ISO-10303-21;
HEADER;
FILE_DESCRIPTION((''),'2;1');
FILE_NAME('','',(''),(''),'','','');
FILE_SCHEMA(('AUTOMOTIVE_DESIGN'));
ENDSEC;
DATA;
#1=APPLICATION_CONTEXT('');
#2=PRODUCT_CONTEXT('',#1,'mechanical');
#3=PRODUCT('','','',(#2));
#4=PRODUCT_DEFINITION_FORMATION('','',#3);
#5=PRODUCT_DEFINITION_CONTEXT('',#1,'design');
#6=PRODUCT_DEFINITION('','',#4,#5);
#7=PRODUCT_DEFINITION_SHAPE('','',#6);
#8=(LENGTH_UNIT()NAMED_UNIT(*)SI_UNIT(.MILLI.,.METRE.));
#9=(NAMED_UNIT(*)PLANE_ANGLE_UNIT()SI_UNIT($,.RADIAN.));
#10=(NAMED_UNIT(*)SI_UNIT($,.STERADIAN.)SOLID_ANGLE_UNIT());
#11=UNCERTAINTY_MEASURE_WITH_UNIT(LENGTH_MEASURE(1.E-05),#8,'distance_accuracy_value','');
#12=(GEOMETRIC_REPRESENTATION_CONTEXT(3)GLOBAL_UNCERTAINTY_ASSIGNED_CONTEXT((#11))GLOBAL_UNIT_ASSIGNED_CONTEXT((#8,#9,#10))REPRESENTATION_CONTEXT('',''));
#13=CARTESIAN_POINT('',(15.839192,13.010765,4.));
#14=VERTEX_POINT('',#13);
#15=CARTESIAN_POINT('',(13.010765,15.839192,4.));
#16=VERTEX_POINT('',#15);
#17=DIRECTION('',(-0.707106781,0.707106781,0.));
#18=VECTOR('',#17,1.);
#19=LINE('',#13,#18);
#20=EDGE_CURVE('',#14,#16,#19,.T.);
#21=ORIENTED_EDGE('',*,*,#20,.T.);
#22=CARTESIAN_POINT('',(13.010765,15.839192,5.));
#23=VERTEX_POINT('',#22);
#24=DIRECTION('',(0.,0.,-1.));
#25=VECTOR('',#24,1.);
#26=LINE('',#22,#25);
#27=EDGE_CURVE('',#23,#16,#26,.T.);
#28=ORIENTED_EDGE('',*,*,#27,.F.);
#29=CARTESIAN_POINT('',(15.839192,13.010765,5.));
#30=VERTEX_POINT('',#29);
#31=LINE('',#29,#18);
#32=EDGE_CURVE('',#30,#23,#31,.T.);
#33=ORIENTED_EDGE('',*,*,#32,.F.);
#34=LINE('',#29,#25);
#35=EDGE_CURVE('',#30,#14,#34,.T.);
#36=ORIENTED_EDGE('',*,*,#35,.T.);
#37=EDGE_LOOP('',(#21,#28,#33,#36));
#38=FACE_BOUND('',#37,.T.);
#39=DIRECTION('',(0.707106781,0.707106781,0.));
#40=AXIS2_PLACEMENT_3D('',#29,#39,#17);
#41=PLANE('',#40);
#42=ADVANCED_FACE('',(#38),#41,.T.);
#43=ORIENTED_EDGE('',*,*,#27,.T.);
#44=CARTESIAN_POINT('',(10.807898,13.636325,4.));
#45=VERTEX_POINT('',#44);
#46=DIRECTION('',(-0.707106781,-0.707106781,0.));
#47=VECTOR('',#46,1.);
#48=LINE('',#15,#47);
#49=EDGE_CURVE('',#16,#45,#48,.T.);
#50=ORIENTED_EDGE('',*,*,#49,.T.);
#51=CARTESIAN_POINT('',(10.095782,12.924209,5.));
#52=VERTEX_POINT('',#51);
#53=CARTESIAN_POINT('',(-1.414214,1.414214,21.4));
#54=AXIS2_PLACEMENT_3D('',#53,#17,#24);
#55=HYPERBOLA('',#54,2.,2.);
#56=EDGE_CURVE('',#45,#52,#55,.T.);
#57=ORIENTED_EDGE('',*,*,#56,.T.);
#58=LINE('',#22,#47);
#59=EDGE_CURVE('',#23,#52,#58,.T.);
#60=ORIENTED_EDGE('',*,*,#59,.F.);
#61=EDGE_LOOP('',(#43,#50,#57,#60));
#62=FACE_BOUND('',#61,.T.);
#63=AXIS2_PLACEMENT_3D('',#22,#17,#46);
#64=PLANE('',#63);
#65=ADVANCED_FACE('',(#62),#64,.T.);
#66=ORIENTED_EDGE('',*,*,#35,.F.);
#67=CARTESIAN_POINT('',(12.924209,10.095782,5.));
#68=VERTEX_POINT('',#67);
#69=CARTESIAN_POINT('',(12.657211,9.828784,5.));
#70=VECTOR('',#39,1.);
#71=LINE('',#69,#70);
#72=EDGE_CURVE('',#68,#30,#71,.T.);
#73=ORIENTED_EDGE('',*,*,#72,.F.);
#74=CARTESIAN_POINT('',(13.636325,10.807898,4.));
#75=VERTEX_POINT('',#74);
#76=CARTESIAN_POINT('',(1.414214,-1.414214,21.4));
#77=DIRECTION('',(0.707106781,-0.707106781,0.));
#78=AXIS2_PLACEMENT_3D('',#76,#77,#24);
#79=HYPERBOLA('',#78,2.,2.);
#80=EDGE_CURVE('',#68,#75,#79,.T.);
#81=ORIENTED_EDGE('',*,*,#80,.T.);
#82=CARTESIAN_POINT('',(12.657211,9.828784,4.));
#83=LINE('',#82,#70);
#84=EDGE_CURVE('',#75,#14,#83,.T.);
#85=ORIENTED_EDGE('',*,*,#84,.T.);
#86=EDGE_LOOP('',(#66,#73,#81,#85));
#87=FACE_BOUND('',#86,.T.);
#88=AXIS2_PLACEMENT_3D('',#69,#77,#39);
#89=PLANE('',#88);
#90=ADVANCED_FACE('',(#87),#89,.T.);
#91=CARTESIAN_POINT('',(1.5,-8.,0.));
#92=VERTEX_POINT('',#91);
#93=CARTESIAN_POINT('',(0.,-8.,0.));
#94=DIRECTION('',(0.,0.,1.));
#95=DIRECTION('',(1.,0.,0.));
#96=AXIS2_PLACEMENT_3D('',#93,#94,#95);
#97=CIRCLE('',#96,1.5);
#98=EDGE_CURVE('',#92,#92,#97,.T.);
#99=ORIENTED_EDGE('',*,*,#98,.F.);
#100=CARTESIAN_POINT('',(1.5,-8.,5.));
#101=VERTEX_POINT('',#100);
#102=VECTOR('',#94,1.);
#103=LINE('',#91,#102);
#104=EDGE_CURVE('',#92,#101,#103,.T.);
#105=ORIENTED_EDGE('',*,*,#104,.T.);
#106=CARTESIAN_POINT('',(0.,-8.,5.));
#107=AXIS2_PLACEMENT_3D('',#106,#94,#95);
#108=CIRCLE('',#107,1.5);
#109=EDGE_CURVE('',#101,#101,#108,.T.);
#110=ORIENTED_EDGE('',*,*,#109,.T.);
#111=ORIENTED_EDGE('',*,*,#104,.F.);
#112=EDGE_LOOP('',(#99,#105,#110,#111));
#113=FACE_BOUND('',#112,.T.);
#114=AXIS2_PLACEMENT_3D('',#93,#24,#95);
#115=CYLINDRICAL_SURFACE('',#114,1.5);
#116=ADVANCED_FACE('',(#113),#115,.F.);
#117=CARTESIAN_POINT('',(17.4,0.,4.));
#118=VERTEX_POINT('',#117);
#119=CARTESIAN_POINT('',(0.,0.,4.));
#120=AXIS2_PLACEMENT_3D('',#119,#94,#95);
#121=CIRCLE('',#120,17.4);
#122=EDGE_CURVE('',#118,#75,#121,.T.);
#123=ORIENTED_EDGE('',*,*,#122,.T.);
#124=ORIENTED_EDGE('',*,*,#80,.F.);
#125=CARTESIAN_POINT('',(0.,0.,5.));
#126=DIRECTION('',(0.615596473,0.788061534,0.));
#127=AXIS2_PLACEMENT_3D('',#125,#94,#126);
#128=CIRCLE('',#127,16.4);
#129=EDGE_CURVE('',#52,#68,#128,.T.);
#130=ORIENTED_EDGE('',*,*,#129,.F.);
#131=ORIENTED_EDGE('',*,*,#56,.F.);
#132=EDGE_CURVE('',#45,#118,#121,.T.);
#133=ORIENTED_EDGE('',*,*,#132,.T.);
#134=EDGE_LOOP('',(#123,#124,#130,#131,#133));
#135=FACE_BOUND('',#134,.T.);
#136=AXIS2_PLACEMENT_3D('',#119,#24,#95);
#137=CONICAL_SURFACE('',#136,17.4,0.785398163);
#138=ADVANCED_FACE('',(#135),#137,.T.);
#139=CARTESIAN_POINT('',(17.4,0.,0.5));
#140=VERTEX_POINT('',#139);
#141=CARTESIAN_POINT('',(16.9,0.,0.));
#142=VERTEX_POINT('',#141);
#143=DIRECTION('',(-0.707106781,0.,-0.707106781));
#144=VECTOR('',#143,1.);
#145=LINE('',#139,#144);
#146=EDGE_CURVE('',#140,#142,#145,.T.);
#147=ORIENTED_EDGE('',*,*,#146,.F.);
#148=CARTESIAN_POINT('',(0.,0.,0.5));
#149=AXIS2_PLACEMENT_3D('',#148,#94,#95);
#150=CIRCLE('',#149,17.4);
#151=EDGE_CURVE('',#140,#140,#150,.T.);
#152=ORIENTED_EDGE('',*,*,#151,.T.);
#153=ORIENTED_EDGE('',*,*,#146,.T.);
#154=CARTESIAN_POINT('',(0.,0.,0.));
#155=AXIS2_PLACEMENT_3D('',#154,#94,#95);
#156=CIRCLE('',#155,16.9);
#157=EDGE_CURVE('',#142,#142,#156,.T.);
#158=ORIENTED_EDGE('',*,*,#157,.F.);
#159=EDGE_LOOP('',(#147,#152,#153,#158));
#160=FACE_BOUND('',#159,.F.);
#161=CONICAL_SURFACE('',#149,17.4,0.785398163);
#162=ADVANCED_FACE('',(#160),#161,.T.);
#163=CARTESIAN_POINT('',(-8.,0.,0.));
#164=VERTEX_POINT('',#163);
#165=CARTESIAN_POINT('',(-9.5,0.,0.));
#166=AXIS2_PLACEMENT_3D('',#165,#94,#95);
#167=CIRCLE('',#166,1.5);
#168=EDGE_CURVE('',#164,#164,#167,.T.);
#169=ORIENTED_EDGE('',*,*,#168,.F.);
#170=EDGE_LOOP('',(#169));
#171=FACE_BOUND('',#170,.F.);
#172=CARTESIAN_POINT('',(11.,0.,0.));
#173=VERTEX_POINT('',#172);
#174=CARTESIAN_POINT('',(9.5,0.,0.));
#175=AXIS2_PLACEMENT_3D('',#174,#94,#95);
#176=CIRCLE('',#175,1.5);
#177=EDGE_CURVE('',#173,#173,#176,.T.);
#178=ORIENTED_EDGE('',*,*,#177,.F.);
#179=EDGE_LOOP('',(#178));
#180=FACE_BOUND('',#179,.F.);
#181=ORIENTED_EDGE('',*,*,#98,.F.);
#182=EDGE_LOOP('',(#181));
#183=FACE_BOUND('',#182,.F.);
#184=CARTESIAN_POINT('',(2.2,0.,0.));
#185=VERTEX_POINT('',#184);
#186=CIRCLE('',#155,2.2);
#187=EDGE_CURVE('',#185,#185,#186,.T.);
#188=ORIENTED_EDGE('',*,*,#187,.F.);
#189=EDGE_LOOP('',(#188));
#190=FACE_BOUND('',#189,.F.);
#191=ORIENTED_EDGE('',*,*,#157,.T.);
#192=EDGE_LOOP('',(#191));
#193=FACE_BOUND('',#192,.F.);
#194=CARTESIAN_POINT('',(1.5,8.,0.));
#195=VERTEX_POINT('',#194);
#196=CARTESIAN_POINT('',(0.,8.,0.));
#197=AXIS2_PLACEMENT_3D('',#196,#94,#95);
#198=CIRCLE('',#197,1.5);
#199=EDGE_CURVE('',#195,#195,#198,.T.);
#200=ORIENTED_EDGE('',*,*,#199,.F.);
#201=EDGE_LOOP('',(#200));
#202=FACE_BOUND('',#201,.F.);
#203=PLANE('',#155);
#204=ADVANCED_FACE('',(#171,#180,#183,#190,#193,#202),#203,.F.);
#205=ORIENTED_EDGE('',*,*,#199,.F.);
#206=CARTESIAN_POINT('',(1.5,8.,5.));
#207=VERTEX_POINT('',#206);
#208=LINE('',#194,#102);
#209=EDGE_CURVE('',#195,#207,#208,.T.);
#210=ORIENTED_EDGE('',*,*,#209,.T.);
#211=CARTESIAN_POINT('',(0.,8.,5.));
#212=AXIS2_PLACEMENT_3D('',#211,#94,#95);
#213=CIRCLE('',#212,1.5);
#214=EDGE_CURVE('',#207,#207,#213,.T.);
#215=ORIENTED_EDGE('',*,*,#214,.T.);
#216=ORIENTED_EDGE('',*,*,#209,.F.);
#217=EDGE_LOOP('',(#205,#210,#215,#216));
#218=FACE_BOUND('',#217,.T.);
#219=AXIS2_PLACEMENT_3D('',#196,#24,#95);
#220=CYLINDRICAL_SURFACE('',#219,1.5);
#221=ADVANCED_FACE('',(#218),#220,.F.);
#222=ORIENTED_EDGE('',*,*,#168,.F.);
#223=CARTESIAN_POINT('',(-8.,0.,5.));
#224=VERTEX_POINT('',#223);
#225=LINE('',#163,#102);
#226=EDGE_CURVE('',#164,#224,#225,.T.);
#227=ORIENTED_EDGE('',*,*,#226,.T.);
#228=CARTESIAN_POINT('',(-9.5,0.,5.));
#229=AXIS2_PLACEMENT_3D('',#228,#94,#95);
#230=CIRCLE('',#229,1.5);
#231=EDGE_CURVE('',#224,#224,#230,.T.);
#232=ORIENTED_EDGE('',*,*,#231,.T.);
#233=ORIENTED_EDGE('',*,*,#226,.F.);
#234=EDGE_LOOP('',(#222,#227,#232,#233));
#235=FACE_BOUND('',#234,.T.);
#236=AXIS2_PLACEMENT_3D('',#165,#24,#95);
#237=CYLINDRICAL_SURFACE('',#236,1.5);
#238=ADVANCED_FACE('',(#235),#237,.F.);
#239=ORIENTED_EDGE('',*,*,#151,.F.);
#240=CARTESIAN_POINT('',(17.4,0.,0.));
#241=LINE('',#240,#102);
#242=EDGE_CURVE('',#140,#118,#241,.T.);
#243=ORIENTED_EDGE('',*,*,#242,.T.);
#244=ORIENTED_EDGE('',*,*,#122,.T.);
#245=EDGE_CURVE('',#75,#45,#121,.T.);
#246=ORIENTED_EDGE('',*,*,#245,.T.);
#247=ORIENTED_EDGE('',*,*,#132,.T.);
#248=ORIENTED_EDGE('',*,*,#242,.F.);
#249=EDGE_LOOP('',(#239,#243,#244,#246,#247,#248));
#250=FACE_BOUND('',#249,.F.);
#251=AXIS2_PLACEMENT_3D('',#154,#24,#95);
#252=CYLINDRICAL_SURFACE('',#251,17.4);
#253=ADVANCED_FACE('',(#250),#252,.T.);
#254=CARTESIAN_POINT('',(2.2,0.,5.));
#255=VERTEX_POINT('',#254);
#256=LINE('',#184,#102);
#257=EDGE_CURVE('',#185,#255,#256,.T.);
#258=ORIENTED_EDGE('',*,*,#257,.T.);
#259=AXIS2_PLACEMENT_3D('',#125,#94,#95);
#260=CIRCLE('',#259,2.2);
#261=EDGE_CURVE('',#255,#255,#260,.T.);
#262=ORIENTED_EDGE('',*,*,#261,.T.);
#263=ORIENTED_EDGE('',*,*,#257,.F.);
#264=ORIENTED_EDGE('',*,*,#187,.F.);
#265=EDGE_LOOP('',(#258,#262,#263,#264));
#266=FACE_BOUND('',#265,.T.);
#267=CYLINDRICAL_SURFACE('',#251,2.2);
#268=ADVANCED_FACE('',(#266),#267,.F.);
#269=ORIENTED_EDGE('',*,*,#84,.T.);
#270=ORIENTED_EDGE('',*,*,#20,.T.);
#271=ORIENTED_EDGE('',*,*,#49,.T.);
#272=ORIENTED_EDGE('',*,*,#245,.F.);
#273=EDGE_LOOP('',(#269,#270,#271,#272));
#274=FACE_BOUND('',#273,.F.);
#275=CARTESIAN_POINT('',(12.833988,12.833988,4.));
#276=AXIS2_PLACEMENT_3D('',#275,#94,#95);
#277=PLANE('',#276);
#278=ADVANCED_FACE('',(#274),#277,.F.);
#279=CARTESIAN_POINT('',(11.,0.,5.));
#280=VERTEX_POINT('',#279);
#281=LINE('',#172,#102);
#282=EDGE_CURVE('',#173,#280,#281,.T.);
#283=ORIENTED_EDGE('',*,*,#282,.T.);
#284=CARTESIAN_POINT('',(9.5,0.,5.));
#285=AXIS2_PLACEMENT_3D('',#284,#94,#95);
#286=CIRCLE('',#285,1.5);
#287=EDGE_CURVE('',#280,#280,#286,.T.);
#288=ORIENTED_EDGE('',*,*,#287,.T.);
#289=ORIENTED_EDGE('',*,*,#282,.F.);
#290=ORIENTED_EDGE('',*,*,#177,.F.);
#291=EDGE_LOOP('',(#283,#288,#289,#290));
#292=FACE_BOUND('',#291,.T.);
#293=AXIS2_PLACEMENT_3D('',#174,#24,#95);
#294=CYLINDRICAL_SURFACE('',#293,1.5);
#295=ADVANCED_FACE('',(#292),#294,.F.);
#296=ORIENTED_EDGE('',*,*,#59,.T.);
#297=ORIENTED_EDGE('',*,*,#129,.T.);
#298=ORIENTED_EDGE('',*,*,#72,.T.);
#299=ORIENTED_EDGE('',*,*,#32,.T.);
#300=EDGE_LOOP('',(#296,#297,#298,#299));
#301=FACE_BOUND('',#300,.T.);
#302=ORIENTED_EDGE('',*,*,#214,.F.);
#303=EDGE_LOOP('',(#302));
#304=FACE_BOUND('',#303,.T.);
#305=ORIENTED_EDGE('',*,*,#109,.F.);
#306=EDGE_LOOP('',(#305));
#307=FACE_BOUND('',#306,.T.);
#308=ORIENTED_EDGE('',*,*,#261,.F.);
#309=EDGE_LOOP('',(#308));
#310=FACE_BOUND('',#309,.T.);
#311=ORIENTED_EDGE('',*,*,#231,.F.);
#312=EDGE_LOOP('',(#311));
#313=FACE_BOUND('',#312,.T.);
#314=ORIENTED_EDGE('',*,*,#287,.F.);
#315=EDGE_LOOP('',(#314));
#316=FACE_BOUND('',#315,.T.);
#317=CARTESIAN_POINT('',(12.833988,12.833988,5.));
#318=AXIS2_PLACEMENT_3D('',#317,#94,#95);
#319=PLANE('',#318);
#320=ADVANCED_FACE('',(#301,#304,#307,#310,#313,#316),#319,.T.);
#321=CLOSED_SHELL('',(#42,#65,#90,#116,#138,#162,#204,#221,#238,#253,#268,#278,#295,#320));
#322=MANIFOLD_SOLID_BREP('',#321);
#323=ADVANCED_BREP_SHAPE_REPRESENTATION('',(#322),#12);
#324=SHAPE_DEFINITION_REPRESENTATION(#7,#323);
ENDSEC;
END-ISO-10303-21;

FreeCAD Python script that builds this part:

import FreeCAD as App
import Part
import Sketcher
from FreeCAD import Vector
Q = App.Units.Quantity


def edges_at(feature, points):
    """Names of the edges that pass closest to the given points."""
    edges = feature.Shape.Edges
    near = lambda p: min(range(len(edges)), key=lambda i: edges[i].distToShape(Part.Vertex(*p))[0])
    return sorted({f"Edge{near(p) + 1}" for p in points})

doc = App.newDocument("Part")
body = doc.addObject("PartDesign::Body", "Body")

# Sketch on XY plane
sketch1 = body.newObject("Sketcher::SketchObject", "Sketch")
sketch1.AttachmentSupport = (doc.getObject("XY_Plane"), [""])
sketch1.MapMode = "FlatFace"
sketch1.addGeometry(Part.Circle(Vector(0, 0, 0), Vector(0, 0, 1), 17.4), False)
sketch1.addGeometry(Part.Circle(Vector(0, -8, 0), Vector(0, 0, 1), 1.5), False)
sketch1.addGeometry(Part.Circle(Vector(-9.5, 0, 0), Vector(0, 0, 1), 1.5), False)
sketch1.addGeometry(Part.Circle(Vector(0, 0, 0), Vector(0, 0, 1), 2.2), False)
sketch1.addGeometry(Part.Circle(Vector(9.5, 0, 0), Vector(0, 0, 1), 1.5), False)
sketch1.addGeometry(Part.Circle(Vector(0, 8, 0), Vector(0, 0, 1), 1.5), False)
sketch1.addConstraint(Sketcher.Constraint("Coincident", 0, 3, -1, 1))
sketch1.addConstraint(Sketcher.Constraint("Coincident", 3, 3, -1, 1))
sketch1.addConstraint(Sketcher.Constraint("Equal", 1, 2))
sketch1.addConstraint(Sketcher.Constraint("Equal", 2, 4))
sketch1.addConstraint(Sketcher.Constraint("Equal", 4, 5))
sketch1.addConstraint(Sketcher.Constraint("Symmetric", 2, 3, 4, 3, -1, 1))
sketch1.addConstraint(Sketcher.Constraint("Symmetric", 1, 3, 5, 3, -1, 1))
sketch1.addConstraint(Sketcher.Constraint("PointOnObject", 1, 3, -2))
sketch1.addConstraint(Sketcher.Constraint("PointOnObject", 2, 3, -1))
sketch1.addConstraint(Sketcher.Constraint("Diameter", 1, 3.0))
sketch1.addConstraint(Sketcher.Constraint("Diameter", 0, 34.8))
sketch1.addConstraint(Sketcher.Constraint("Diameter", 3, 4.4))
sketch1.addConstraint(Sketcher.Constraint("DistanceY", 1, 3, -1, 1, 8.0))
sketch1.addConstraint(Sketcher.Constraint("DistanceX", 2, 3, 4, 3, 19.0))
pad1 = body.newObject("PartDesign::Pad", "Pad")
pad1.Profile = sketch1
pad1.Length = 5
doc.recompute()

chamfer = body.newObject("PartDesign::Chamfer", "Chamfer")
chamfer.Base = (pad1, edges_at(pad1, [(-17.4, 0, 5)]))
chamfer.Size = 1
doc.recompute()

chamfer2 = body.newObject("PartDesign::Chamfer", "Chamfer001")
chamfer2.Base = (chamfer, edges_at(chamfer, [(-17.4, 0, 0)]))
chamfer2.Size = 0.5

# Sketch on XY plane
sketch2 = body.newObject("Sketcher::SketchObject", "Sketch001")
sketch2.AttachmentSupport = (doc.getObject("XY_Plane"), [""])
sketch2.MapMode = "FlatFace"
sketch2.AttachmentOffset = App.Placement(Vector(0, 0, 5), App.Rotation())
sketch2.addGeometry(Part.LineSegment(Vector(13, 15.8, 0), Vector(9.8, 12.7, 0)), False)
sketch2.addGeometry(Part.LineSegment(Vector(9.8, 12.7, 0), Vector(12.7, 9.8, 0)), False)
sketch2.addGeometry(Part.LineSegment(Vector(12.7, 9.8, 0), Vector(15.8, 13, 0)), False)
sketch2.addGeometry(Part.LineSegment(Vector(15.8, 13, 0), Vector(13, 15.8, 0)), False)
sketch2.addConstraint(Sketcher.Constraint("Coincident", 0, 2, 1, 1))
sketch2.addConstraint(Sketcher.Constraint("Coincident", 1, 2, 2, 1))
sketch2.addConstraint(Sketcher.Constraint("Coincident", 2, 2, 3, 1))
sketch2.addConstraint(Sketcher.Constraint("Coincident", 3, 2, 0, 1))
sketch2.addConstraint(Sketcher.Constraint("Perpendicular", 0, 1))
sketch2.addConstraint(Sketcher.Constraint("Perpendicular", 1, 2))
sketch2.addConstraint(Sketcher.Constraint("Perpendicular", 2, 3))
sketch2.addConstraint(Sketcher.Constraint("Angle", 0, Q("-135 deg")))
sketch2.addConstraint(Sketcher.Constraint("Distance", 1, 4.0))
sketch2.addConstraint(Sketcher.Constraint("Distance", 0, 4.500001))
sketch2.addConstraint(Sketcher.Constraint("DistanceY", -1, 1, 0, 2, 12.657211))
sketch2.addConstraint(Sketcher.Constraint("DistanceX", -1, 1, 1, 2, 12.657211))
pad2 = body.newObject("PartDesign::Pad", "Pad001")
pad2.Profile = sketch2
pad2.Length = 1
pad2.Reversed = True

doc.recompute()
